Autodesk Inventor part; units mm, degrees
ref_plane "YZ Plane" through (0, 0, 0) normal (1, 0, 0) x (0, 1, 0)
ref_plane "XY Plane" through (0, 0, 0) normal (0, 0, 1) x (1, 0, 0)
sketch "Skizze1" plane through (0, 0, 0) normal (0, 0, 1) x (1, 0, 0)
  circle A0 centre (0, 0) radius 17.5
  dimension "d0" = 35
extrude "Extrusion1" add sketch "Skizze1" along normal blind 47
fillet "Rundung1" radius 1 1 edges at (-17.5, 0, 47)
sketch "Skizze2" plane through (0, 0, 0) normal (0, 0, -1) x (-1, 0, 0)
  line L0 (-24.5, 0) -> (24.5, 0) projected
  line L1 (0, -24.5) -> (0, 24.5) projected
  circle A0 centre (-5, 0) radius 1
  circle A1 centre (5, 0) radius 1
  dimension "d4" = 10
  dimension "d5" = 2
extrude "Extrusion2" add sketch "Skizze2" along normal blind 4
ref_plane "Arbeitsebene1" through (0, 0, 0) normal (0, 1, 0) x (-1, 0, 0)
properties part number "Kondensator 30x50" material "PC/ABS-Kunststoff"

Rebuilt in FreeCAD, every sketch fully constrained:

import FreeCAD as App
import Part
import Sketcher
from FreeCAD import Vector


def edges_at(feature, points):
    """Names of the edges that pass closest to the given points."""
    edges = feature.Shape.Edges
    near = lambda p: min(range(len(edges)), key=lambda i: edges[i].distToShape(Part.Vertex(*p))[0])
    return sorted({f"Edge{near(p) + 1}" for p in points})

doc = App.newDocument("Part")
body = doc.addObject("PartDesign::Body", "Body")

# Sketch on XY plane
sketch1 = doc.addObject("Sketcher::SketchObject", "Sketch")
body.addObject(sketch1)
sketch1.AttachmentSupport = (doc.XY_Plane, [""])
sketch1.MapMode = "FlatFace"
sketch1.addGeometry(Part.Circle(Vector(0, 0, 0), Vector(0, 0, 1), 17.5), False)
sketch1.addConstraint(Sketcher.Constraint("Coincident", 0, 3, -1, 1))
sketch1.addConstraint(Sketcher.Constraint("Diameter", 0, 35.0))
pad1 = doc.addObject("PartDesign::Pad", "Pad")
body.addObject(pad1)
pad1.Profile = sketch1
pad1.Length = 47
doc.recompute()

fillet = doc.addObject("PartDesign::Fillet", "Fillet")
body.addObject(fillet)
fillet.Base = (pad1, edges_at(pad1, [(-17.5, 0, 47)]))
fillet.Radius = 1

# Sketch on XY plane
sketch2 = doc.addObject("Sketcher::SketchObject", "Sketch001")
body.addObject(sketch2)
sketch2.AttachmentSupport = (doc.XY_Plane, [""])
sketch2.MapMode = "FlatFace"
sketch2.addGeometry(Part.Circle(Vector(5, 0, 0), Vector(0, 0, 1), 1), False)
sketch2.addGeometry(Part.Circle(Vector(-5, 0, 0), Vector(0, 0, 1), 1), False)
sketch2.addConstraint(Sketcher.Constraint("Equal", 0, 1))
sketch2.addConstraint(Sketcher.Constraint("Symmetric", 0, 3, 1, 3, -1, 1))
sketch2.addConstraint(Sketcher.Constraint("PointOnObject", 0, 3, -1))
sketch2.addConstraint(Sketcher.Constraint("Diameter", 0, 2.0))
sketch2.addConstraint(Sketcher.Constraint("DistanceX", 1, 3, 0, 3, 10.0))
pad2 = doc.addObject("PartDesign::Pad", "Pad001")
body.addObject(pad2)
pad2.Profile = sketch2
pad2.Length = 4
pad2.Reversed = True

doc.recompute()
